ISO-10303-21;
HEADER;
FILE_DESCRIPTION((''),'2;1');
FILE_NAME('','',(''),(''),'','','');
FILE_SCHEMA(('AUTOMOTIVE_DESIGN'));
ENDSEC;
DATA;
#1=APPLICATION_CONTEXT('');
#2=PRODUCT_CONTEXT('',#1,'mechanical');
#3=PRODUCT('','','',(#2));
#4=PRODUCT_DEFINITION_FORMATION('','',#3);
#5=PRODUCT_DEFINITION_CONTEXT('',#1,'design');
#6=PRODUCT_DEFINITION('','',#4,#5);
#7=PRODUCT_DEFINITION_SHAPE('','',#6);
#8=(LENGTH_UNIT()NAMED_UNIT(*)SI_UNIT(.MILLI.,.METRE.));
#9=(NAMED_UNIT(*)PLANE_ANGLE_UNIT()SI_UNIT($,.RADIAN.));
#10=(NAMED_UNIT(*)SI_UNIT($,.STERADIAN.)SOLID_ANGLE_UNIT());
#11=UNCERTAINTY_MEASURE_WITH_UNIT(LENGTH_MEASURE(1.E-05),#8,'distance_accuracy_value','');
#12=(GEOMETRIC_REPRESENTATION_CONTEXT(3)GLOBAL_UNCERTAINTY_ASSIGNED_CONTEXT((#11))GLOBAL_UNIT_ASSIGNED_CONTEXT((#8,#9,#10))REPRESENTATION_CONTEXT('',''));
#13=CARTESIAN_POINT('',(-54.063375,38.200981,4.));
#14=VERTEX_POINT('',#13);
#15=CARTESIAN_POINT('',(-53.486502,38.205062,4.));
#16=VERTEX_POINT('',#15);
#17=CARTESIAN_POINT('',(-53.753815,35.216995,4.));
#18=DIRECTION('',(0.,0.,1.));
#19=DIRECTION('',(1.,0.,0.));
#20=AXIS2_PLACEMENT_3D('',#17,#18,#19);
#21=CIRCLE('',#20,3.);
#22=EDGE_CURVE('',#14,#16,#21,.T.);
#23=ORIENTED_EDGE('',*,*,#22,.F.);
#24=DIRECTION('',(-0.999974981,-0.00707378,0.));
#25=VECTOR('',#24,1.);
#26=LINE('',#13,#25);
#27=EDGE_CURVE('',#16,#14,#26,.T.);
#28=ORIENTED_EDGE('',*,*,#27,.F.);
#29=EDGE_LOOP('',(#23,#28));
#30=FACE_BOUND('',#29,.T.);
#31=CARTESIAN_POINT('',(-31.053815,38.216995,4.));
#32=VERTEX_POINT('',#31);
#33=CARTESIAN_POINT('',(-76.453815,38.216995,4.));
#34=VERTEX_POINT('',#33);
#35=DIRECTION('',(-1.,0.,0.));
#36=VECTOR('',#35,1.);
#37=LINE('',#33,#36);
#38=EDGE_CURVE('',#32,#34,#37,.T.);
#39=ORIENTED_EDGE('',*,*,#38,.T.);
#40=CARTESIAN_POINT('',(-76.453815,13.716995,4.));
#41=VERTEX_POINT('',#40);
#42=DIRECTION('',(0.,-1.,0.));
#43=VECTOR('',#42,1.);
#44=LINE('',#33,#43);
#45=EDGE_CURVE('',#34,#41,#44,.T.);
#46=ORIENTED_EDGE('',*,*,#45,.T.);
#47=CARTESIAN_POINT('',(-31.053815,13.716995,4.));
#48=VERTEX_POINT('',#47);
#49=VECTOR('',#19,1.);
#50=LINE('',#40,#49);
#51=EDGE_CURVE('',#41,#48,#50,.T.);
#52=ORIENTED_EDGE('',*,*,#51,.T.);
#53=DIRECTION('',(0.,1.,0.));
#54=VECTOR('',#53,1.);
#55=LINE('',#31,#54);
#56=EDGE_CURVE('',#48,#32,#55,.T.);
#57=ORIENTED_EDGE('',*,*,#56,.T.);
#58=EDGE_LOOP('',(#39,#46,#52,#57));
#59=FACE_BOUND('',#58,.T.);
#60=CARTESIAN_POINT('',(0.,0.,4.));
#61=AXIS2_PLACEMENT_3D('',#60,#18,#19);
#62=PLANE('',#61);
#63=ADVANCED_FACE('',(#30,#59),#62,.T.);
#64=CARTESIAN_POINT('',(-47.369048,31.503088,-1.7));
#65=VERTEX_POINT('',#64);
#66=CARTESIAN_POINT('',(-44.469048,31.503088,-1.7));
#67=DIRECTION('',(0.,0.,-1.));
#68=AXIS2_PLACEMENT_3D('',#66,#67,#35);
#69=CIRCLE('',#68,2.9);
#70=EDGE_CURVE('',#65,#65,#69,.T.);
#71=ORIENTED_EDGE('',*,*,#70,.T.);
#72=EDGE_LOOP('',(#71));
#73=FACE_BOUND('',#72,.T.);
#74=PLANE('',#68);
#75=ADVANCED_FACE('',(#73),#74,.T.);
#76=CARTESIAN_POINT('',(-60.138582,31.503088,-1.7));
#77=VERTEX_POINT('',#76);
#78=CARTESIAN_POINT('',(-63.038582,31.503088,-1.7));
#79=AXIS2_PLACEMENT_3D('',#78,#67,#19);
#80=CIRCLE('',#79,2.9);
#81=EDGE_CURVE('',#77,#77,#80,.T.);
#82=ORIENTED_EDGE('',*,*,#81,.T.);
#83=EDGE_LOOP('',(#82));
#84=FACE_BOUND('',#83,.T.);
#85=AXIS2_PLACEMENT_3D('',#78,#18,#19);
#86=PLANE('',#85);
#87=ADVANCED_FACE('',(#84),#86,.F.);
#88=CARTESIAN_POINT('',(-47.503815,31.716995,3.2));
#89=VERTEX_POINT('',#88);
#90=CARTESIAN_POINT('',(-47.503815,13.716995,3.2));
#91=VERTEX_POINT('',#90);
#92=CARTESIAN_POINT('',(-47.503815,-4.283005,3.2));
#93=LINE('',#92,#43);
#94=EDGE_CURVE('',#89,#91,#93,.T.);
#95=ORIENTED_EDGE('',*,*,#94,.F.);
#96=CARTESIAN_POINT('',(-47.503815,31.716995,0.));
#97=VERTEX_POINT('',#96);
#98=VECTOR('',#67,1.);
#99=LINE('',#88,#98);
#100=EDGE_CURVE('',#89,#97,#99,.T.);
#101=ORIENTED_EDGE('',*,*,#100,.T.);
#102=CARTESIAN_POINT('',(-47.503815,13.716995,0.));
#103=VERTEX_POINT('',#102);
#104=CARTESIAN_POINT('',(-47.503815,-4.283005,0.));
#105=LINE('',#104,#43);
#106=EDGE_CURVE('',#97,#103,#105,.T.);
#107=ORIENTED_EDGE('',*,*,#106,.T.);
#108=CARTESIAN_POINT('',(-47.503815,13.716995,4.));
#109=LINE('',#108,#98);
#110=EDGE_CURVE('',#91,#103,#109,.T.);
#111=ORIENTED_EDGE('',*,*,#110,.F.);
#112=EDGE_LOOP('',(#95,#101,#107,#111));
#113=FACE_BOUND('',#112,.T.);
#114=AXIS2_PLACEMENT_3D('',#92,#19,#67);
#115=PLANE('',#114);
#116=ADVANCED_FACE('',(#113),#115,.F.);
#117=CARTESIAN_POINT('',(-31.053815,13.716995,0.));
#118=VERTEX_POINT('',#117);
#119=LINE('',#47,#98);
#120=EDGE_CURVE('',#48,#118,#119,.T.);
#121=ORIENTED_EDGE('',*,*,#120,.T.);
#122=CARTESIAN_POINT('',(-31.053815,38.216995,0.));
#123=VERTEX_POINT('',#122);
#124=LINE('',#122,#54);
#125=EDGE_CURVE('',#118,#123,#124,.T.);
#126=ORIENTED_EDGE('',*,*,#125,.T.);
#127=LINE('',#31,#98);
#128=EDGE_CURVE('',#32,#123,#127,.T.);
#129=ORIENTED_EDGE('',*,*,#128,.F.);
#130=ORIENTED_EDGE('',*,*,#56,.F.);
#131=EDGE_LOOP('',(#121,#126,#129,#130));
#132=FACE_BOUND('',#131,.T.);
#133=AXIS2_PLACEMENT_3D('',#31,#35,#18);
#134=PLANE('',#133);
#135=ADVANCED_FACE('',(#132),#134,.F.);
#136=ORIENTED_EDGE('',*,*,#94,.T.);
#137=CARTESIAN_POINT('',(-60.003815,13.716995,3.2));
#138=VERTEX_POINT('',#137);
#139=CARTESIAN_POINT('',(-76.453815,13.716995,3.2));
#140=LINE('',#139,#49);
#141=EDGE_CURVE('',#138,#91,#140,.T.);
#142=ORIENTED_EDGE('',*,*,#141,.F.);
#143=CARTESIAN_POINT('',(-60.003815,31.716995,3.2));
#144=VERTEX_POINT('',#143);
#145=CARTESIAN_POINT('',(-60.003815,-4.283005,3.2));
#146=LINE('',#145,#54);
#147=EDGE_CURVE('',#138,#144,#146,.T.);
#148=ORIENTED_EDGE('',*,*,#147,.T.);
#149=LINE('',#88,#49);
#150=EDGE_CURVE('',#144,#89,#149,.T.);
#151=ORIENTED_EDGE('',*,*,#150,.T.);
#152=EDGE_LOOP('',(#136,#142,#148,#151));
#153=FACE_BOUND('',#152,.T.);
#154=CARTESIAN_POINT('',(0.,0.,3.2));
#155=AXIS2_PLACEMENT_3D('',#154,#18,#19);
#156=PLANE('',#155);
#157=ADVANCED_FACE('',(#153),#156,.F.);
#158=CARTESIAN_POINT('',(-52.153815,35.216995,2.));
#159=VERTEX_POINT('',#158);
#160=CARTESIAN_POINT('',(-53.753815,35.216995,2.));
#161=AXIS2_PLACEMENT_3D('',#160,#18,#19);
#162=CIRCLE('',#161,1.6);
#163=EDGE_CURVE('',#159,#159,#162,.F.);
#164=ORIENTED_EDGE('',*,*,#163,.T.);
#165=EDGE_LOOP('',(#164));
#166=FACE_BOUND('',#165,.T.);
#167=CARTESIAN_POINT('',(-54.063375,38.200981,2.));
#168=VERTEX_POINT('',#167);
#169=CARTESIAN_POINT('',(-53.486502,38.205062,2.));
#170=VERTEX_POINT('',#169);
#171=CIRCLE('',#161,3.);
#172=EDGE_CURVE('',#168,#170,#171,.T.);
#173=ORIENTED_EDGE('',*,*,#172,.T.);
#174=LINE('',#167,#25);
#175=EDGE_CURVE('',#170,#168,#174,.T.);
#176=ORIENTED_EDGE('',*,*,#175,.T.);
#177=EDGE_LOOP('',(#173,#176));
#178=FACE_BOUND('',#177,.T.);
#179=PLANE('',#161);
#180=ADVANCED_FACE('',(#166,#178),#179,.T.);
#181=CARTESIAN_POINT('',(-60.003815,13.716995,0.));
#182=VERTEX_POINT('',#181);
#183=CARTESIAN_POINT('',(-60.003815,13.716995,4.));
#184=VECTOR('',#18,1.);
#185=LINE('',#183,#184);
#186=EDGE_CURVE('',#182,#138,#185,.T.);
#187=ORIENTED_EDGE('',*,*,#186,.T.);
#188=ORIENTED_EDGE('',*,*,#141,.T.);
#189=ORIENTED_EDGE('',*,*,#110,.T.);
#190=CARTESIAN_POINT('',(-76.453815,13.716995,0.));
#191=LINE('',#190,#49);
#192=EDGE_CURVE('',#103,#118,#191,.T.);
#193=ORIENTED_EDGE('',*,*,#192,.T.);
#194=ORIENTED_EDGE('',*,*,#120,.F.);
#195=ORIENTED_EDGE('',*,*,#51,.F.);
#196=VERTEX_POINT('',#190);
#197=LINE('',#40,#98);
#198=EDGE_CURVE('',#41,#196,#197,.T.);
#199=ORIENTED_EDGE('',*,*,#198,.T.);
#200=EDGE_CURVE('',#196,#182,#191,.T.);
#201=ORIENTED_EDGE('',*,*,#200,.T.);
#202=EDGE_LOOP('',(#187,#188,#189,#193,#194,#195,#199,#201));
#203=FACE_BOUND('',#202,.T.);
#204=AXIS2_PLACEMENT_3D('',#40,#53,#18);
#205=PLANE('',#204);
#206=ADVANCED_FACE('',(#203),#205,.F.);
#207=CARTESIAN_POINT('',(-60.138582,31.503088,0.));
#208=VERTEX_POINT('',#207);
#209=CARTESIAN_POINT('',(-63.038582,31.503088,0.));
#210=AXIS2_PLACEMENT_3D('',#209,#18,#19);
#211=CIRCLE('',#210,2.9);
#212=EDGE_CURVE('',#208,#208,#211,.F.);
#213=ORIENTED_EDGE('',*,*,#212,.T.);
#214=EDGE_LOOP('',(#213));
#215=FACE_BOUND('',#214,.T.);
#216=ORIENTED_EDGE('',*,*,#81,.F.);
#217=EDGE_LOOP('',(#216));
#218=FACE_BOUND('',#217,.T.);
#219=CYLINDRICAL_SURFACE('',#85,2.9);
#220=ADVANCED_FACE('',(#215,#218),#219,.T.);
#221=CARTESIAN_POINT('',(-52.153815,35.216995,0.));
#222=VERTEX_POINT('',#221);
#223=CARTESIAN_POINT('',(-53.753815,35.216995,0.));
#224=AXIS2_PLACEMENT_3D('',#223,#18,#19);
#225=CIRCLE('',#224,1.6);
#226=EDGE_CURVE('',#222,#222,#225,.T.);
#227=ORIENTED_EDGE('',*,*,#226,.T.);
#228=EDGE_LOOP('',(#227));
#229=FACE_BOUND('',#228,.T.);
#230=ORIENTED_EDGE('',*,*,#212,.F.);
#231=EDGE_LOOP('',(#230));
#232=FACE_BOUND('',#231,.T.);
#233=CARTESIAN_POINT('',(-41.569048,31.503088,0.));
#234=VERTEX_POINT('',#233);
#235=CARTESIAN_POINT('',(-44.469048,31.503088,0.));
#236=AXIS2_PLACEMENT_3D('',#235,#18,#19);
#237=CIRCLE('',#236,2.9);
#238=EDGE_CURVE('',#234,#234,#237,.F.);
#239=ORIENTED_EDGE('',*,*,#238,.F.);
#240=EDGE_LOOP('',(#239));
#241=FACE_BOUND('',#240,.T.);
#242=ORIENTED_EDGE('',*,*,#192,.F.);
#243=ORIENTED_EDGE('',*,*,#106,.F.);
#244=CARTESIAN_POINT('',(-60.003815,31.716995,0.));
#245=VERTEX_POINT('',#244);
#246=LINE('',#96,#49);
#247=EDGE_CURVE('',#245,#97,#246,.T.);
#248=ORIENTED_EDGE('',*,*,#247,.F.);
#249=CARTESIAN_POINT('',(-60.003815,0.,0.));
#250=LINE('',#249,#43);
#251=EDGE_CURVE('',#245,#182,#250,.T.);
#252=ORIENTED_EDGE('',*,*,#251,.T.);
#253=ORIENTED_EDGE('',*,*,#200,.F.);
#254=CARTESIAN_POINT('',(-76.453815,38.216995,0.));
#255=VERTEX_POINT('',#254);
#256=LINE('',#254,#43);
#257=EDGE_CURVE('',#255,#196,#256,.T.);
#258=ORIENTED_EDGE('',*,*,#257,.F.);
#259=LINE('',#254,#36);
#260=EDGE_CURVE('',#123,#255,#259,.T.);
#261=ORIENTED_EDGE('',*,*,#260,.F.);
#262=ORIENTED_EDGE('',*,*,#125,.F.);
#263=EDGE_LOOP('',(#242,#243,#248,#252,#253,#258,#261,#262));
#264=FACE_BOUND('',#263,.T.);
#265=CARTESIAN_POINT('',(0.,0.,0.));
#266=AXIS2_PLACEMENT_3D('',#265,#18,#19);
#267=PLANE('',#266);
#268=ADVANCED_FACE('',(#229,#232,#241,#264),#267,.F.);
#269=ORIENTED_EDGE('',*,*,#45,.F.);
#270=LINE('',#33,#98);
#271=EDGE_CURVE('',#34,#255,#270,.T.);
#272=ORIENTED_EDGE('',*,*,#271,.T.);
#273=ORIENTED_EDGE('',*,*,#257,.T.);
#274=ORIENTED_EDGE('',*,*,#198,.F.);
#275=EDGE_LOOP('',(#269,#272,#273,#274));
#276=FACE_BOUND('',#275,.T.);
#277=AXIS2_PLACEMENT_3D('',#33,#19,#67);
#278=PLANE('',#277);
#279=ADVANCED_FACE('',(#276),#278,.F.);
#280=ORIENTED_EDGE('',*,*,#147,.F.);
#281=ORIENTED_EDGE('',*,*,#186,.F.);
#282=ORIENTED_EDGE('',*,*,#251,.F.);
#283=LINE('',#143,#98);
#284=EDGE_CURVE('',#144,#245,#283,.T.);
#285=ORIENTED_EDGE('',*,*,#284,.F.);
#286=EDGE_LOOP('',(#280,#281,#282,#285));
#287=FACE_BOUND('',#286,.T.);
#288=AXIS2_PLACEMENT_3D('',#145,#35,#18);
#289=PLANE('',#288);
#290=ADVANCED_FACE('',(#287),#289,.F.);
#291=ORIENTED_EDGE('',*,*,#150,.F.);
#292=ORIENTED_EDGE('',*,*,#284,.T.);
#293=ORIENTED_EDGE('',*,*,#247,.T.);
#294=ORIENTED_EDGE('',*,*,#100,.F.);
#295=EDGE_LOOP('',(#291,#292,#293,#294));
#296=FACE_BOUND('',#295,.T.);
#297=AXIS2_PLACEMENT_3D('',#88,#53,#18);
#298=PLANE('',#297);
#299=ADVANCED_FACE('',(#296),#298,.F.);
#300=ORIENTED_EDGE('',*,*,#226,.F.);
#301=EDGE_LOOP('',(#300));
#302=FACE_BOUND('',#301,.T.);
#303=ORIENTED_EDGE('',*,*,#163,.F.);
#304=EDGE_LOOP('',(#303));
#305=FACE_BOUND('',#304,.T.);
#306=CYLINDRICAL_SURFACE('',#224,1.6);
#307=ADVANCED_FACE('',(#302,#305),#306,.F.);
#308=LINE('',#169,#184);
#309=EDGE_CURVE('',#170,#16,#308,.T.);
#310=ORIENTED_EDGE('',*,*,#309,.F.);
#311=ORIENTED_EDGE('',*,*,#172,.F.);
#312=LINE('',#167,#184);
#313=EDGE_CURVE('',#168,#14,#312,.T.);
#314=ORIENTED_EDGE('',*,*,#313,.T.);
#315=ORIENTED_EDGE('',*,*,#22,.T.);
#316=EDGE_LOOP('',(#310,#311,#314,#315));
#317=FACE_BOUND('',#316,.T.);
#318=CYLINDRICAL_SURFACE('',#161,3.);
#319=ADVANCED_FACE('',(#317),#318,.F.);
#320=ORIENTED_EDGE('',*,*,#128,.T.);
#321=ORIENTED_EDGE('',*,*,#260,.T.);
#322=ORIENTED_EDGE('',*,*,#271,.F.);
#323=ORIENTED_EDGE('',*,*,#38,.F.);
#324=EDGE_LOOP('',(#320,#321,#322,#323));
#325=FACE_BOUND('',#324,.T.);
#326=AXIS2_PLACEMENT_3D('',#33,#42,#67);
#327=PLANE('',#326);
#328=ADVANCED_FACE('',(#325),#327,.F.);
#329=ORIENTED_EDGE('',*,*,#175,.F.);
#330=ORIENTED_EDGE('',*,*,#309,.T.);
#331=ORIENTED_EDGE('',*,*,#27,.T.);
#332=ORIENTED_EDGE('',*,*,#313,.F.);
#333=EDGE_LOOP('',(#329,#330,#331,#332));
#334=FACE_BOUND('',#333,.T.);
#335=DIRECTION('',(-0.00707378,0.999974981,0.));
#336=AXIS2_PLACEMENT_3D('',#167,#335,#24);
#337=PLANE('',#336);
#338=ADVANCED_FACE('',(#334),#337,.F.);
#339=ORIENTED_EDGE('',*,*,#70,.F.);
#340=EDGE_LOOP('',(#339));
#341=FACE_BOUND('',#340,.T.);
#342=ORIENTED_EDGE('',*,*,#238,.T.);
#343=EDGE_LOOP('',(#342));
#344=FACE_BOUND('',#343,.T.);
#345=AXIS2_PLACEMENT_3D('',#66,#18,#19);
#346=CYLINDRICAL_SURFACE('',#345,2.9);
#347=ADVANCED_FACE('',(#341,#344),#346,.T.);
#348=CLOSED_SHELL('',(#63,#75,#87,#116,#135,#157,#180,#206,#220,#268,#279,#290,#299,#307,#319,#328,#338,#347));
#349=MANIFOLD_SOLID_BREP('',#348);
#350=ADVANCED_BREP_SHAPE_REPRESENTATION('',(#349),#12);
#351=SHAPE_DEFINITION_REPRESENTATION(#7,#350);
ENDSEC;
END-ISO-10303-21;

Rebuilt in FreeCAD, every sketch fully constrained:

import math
import FreeCAD as App
import Part
import Sketcher


def add_polygon(sketch, points):
    """Adds a closed chain of lines whose ends are joined by coincident constraints."""
    first, n = sketch.GeometryCount, len(points)
    for a, b in zip(points, points[1:] + points[:1]):
        sketch.addGeometry(Part.LineSegment(App.Vector(*a, 0), App.Vector(*b, 0)), False)
    for i in range(n):
        sketch.addConstraint(Sketcher.Constraint("Coincident", first + i, 2, first + (i + 1) % n, 1))

doc = App.newDocument("Part")
params = doc.addObject("Spreadsheet::Sheet", "Params")
for row, (alias, value) in enumerate([
    ("sketch1_width", "45.4 mm"),
    ("sketch1_height", "24.5 mm"),
    ("pad1_length", "4 mm"),
    ("sketch2_diameter", "3.2 mm"),
    ("sketch3_radius", "3 mm"),
    ("pocket2_length", "2 mm"),
    ("sketch4_height", "36 mm"),
    ("sketch4_width", "12.5 mm"),
    ("pocket3_length", "3.2 mm"),
    ("sketch5_diameter", "5.8 mm"),
    ("pad2_length", "1.7 mm"),
], start=1):
    params.set(f"A{row}", alias)
    params.set(f"B{row}", "=" + value)
    params.setAlias(f"B{row}", alias)

body = doc.addObject("PartDesign::Body", "Body")

sketch1 = body.newObject("Sketcher::SketchObject", "Sketch")
sketch1.AttachmentSupport = (doc.getObject("XY_Plane"), [""])
sketch1.MapMode = "FlatFace"
add_polygon(sketch1, [(-76, 38), (-76, 14), (-31, 14), (-31, 38)])
sketch1.addConstraint([
    Sketcher.Constraint("Vertical", 0),
    Sketcher.Constraint("Horizontal", 1),
    Sketcher.Constraint("Vertical", 2),
    Sketcher.Constraint("Horizontal", 3),
    Sketcher.Constraint("DistanceX", 1, 1, 1, 2, 45.4),
    Sketcher.Constraint("DistanceY", 0, 2, 0, 1, 24.5),
    Sketcher.Constraint("DistanceX", 0, 2, -1, 1, 76.453815),
    Sketcher.Constraint("DistanceY", -1, 1, 0, 2, 13.716995),
])
sketch1.setExpression("Constraints[8]", "Params.sketch1_width")
sketch1.setExpression("Constraints[9]", "Params.sketch1_height")
pad1 = body.newObject("PartDesign::Pad", "Pad")
pad1.Profile = sketch1
pad1.setExpression("Length", "Params.pad1_length")

sketch2 = body.newObject("Sketcher::SketchObject", "Sketch001")
sketch2.AttachmentSupport = (doc.getObject("XY_Plane"), [""])
sketch2.MapMode = "FlatFace"
sketch2.AttachmentOffset = App.Placement(App.Vector(0, 0, 4), App.Rotation())
sketch2.addGeometry(Part.Circle(App.Vector(-53.8, 35.2, 0), App.Vector(0, 0, 1), 1.6), False)
sketch2.addConstraint([
    Sketcher.Constraint("Diameter", 0, 3.2),
    Sketcher.Constraint("DistanceX", 0, 3, -1, 1, 53.753815),
    Sketcher.Constraint("DistanceY", -1, 1, 0, 3, 35.216995),
])
sketch2.setExpression("Constraints[0]", "Params.sketch2_diameter")
pocket1 = body.newObject("PartDesign::Pocket", "Pocket")
pocket1.Profile = sketch2
pocket1.Type = "ThroughAll"

sketch3 = body.newObject("Sketcher::SketchObject", "Sketch002")
sketch3.AttachmentSupport = (doc.getObject("XY_Plane"), [""])
sketch3.MapMode = "FlatFace"
sketch3.AttachmentOffset = App.Placement(App.Vector(0, 0, 4), App.Rotation())
sketch3.addGeometry([
    Part.LineSegment(App.Vector(-53.5, 38.2, 0), App.Vector(-54.1, 38.2, 0)),
    Part.ArcOfCircle(Part.Circle(App.Vector(-53.8, 35.2, 0), App.Vector(0, 0, 1), 3), math.radians(96), math.radians(445)),
], False)
sketch3.addConstraint([
    Sketcher.Constraint("Coincident", 0, 1, 1, 2),
    Sketcher.Constraint("Coincident", 1, 1, 0, 2),
    Sketcher.Constraint("Radius", 1, 3.0),
    Sketcher.Constraint("DistanceX", 0, 1, -1, 1, 53.486502),
    Sketcher.Constraint("DistanceY", -1, 1, 0, 1, 38.205062),
    Sketcher.Constraint("DistanceY", -1, 1, 1, 1, 38.200981),
    Sketcher.Constraint("DistanceX", 1, 1, 1, 3, 0.30956),
])
sketch3.setExpression("Constraints[2]", "Params.sketch3_radius")
pocket2 = body.newObject("PartDesign::Pocket", "Pocket001")
pocket2.Profile = sketch3
pocket2.setExpression("Length", "Params.pocket2_length")

sketch4 = body.newObject("Sketcher::SketchObject", "Sketch003")
sketch4.AttachmentSupport = (doc.getObject("XY_Plane"), [""])
sketch4.MapMode = "FlatFace"
add_polygon(sketch4, [(-48, 32), (-48, -4), (-60, -4), (-60, 32)])
sketch4.addConstraint([
    Sketcher.Constraint("Vertical", 0),
    Sketcher.Constraint("Horizontal", 1),
    Sketcher.Constraint("Vertical", 2),
    Sketcher.Constraint("Horizontal", 3),
    Sketcher.Constraint("DistanceY", 0, 2, 0, 1, 36.0),
    Sketcher.Constraint("DistanceX", 1, 2, 1, 1, 12.5),
    Sketcher.Constraint("DistanceX", 0, 2, -1, 1, 47.503815),
    Sketcher.Constraint("DistanceY", 0, 2, -1, 1, 4.283005),
])
sketch4.setExpression("Constraints[8]", "Params.sketch4_height")
sketch4.setExpression("Constraints[9]", "Params.sketch4_width")
pocket3 = body.newObject("PartDesign::Pocket", "Pocket002")
pocket3.Profile = sketch4
pocket3.setExpression("Length", "Params.pocket3_length")
pocket3.Reversed = True

sketch5 = body.newObject("Sketcher::SketchObject", "Sketch004")
sketch5.AttachmentSupport = (doc.getObject("XY_Plane"), [""])
sketch5.MapMode = "FlatFace"
sketch5.addGeometry([
    Part.Circle(App.Vector(-44.5, 31.5, 0), App.Vector(0, 0, 1), 2.9),
    Part.Circle(App.Vector(-63, 31.5, 0), App.Vector(0, 0, 1), 2.9),
], False)
sketch5.addConstraint([
    Sketcher.Constraint("Equal", 0, 1),
    Sketcher.Constraint("Horizontal", 0, 3, 1, 3),
    Sketcher.Constraint("Diameter", 0, 5.8),
    Sketcher.Constraint("DistanceX", 0, 3, -1, 1, 44.469048),
    Sketcher.Constraint("DistanceY", -1, 1, 0, 3, 31.503088),
    Sketcher.Constraint("DistanceX", 1, 3, -1, 1, 63.038582),
])
sketch5.setExpression("Constraints[2]", "Params.sketch5_diameter")
pad2 = body.newObject("PartDesign::Pad", "Pad001")
pad2.Profile = sketch5
pad2.setExpression("Length", "Params.pad2_length")
pad2.Reversed = True

doc.recompute()
